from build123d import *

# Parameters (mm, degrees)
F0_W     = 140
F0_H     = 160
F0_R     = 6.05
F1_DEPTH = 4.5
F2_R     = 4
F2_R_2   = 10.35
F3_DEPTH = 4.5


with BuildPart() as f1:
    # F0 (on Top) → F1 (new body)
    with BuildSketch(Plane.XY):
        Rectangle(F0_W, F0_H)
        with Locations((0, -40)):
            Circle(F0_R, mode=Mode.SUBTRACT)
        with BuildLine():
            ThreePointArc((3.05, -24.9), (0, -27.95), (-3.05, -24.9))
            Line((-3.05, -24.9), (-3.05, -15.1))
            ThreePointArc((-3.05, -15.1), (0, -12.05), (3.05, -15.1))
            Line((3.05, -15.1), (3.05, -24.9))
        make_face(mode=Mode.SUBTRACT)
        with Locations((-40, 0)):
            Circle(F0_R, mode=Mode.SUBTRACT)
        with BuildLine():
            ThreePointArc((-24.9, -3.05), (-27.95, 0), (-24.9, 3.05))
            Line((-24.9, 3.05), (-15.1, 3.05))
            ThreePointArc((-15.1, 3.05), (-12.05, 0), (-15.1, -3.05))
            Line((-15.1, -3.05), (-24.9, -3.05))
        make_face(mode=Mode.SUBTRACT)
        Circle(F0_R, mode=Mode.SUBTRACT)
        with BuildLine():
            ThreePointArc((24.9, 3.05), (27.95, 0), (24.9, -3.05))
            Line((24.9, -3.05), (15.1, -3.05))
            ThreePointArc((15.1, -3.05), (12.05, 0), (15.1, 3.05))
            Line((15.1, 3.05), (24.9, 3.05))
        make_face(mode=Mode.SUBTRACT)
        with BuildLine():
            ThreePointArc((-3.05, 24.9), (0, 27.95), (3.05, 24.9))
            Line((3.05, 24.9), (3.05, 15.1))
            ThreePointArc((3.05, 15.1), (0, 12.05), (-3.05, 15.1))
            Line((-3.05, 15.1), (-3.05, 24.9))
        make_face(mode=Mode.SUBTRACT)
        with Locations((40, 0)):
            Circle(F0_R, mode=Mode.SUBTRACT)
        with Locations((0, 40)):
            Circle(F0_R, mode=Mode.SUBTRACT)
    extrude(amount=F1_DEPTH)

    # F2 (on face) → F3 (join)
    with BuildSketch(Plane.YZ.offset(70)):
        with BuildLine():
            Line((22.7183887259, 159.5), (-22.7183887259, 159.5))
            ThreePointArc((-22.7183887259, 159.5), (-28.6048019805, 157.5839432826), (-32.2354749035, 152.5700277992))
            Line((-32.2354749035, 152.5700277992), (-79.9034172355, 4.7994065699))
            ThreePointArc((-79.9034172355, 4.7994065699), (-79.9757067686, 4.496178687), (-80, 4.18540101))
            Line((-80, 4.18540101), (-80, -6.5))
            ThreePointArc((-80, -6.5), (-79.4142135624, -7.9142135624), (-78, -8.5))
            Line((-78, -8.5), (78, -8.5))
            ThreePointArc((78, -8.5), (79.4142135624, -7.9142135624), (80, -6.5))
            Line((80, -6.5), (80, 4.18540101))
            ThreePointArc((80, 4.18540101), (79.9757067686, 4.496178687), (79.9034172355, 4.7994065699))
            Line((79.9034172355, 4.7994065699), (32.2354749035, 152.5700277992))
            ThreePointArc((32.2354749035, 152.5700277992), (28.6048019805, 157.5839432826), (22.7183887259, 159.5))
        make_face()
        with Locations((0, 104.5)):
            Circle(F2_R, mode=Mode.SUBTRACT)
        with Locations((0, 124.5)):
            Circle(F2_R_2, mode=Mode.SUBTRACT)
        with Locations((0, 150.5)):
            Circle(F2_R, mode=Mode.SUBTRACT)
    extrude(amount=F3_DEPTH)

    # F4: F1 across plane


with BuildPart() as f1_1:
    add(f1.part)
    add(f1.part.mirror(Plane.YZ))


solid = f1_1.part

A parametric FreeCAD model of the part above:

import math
import FreeCAD as App
import Part
import Sketcher

V = App.Vector

doc = App.newDocument("Part")
body = doc.addObject("PartDesign::Body", "Body")

sketch1 = body.newObject("Sketcher::SketchObject", "Sketch")
sketch1.AttachmentSupport = (doc.getObject("XY_Plane"), [""])
sketch1.MapMode = "FlatFace"
sketch1.addGeometry([
    Part.LineSegment(V(-70, 80, 0), V(-70, -80, 0)),
    Part.LineSegment(V(-70, -80, 0), V(70, -80, 0)),
    Part.LineSegment(V(70, -80, 0), V(70, 80, 0)),
    Part.LineSegment(V(70, 80, 0), V(-70, 80, 0)),
    Part.Circle(V(0, -40, 0), V(0, 0, 1), 6),
    Part.LineSegment(V(3, -15.1, 0), V(3, -24.9, 0)),
    Part.ArcOfCircle(Part.Circle(V(0, -24.9, 0), V(0, 0, 1), 3), math.radians(180), math.radians(360)),
    Part.LineSegment(V(-3, -24.9, 0), V(-3, -15.1, 0)),
    Part.ArcOfCircle(Part.Circle(V(0, -15.1, 0), V(0, 0, 1), 3), math.radians(0), math.radians(180)),
    Part.Circle(V(-40, 0, 0), V(0, 0, 1), 6),
    Part.LineSegment(V(-15.1, -3, 0), V(-24.9, -3, 0)),
    Part.ArcOfCircle(Part.Circle(V(-24.9, 0, 0), V(0, 0, 1), 3), math.radians(90), math.radians(270)),
    Part.LineSegment(V(-24.9, 3, 0), V(-15.1, 3, 0)),
    Part.ArcOfCircle(Part.Circle(V(-15.1, 0, 0), V(0, 0, 1), 3), math.radians(-90), math.radians(90)),
    Part.Circle(V(0, 0, 0), V(0, 0, 1), 6),
    Part.LineSegment(V(15.1, 3, 0), V(24.9, 3, 0)),
    Part.ArcOfCircle(Part.Circle(V(24.9, 0, 0), V(0, 0, 1), 3), math.radians(-90), math.radians(90)),
    Part.LineSegment(V(24.9, -3, 0), V(15.1, -3, 0)),
    Part.ArcOfCircle(Part.Circle(V(15.1, 0, 0), V(0, 0, 1), 3), math.radians(90), math.radians(270)),
    Part.LineSegment(V(-3, 15.1, 0), V(-3, 24.9, 0)),
    Part.ArcOfCircle(Part.Circle(V(0, 24.9, 0), V(0, 0, 1), 3), math.radians(0), math.radians(180)),
    Part.LineSegment(V(3, 24.9, 0), V(3, 15.1, 0)),
    Part.ArcOfCircle(Part.Circle(V(0, 15.1, 0), V(0, 0, 1), 3), math.radians(180), math.radians(360)),
    Part.Circle(V(40, 0, 0), V(0, 0, 1), 6),
    Part.Circle(V(0, 40, 0), V(0, 0, 1), 6),
], False)
sketch1.addConstraint([
    Sketcher.Constraint("Coincident", 0, 2, 1, 1),
    Sketcher.Constraint("Coincident", 1, 2, 2, 1),
    Sketcher.Constraint("Coincident", 2, 2, 3, 1),
    Sketcher.Constraint("Coincident", 3, 2, 0, 1),
    Sketcher.Constraint("Tangent", 5, 2, 6, 2),
    Sketcher.Constraint("Tangent", 6, 1, 7, 1),
    Sketcher.Constraint("Tangent", 7, 2, 8, 2),
    Sketcher.Constraint("Tangent", 8, 1, 5, 1),
    Sketcher.Constraint("Tangent", 10, 2, 11, 2),
    Sketcher.Constraint("Tangent", 11, 1, 12, 1),
    Sketcher.Constraint("Tangent", 12, 2, 13, 2),
    Sketcher.Constraint("Tangent", 13, 1, 10, 1),
    Sketcher.Constraint("Tangent", 15, 2, 16, 2),
    Sketcher.Constraint("Tangent", 16, 1, 17, 1),
    Sketcher.Constraint("Tangent", 17, 2, 18, 2),
    Sketcher.Constraint("Tangent", 18, 1, 15, 1),
    Sketcher.Constraint("Tangent", 19, 2, 20, 2),
    Sketcher.Constraint("Tangent", 20, 1, 21, 1),
    Sketcher.Constraint("Tangent", 21, 2, 22, 2),
    Sketcher.Constraint("Tangent", 22, 1, 19, 1),
    Sketcher.Constraint("Vertical", 0),
    Sketcher.Constraint("Horizontal", 1),
    Sketcher.Constraint("Vertical", 2),
    Sketcher.Constraint("Horizontal", 3),
    Sketcher.Constraint("Vertical", 5),
    Sketcher.Constraint("Vertical", 7),
    Sketcher.Constraint("Horizontal", 10),
    Sketcher.Constraint("Horizontal", 12),
    Sketcher.Constraint("Horizontal", 15),
    Sketcher.Constraint("Horizontal", 17),
    Sketcher.Constraint("Vertical", 19),
    Sketcher.Constraint("Vertical", 21),
    Sketcher.Constraint("Coincident", 14, 3, -1, 1),
    Sketcher.Constraint("Equal", 4, 9),
    Sketcher.Constraint("Equal", 8, 11),
    Sketcher.Constraint("Equal", 9, 14),
    Sketcher.Constraint("Equal", 13, 16),
    Sketcher.Constraint("Equal", 18, 20),
    Sketcher.Constraint("Equal", 14, 23),
    Sketcher.Constraint("Equal", 23, 24),
    Sketcher.Constraint("Symmetric", 11, 3, 16, 3, -1, 1),
    Sketcher.Constraint("Symmetric", 6, 3, 20, 3, -1, 1),
    Sketcher.Constraint("Symmetric", 9, 3, 23, 3, -1, 1),
    Sketcher.Constraint("Symmetric", 4, 3, 24, 3, -1, 1),
    Sketcher.Constraint("Symmetric", 0, 2, 2, 2, -1, 1),
    Sketcher.Constraint("Symmetric", 13, 3, 18, 3, -2),
    Sketcher.Constraint("Symmetric", 8, 3, 22, 3, -1),
    Sketcher.Constraint("PointOnObject", 4, 3, -2),
    Sketcher.Constraint("PointOnObject", 9, 3, -1),
    Sketcher.Constraint("Equal", 17, 5),
    Sketcher.Constraint("Diameter", 4, 12.1),
    Sketcher.Constraint("DistanceX", 1, 1, 1, 2, 140.0),
    Sketcher.Constraint("DistanceY", 0, 2, 0, 1, 160.0),
    Sketcher.Constraint("Radius", 6, 3.05),
    Sketcher.Constraint("DistanceX", 10, 2, 10, 1, 9.8),
    Sketcher.Constraint("DistanceY", 4, 3, -1, 1, 40.0),
    Sketcher.Constraint("DistanceX", 9, 3, -1, 1, 40.0),
    Sketcher.Constraint("DistanceX", 13, 3, 16, 3, 40.0),
    Sketcher.Constraint("DistanceY", 6, 3, -1, 1, 24.9),
])
pad1 = body.newObject("PartDesign::Pad", "Pad")
pad1.Profile = sketch1
pad1.Length = 4.5

sketch2 = body.newObject("Sketcher::SketchObject", "Sketch001")
sketch2.AttachmentSupport = (doc.getObject("YZ_Plane"), [""])
sketch2.MapMode = "FlatFace"
sketch2.AttachmentOffset = App.Placement(V(0, 0, 70), App.Rotation())
sketch2.addGeometry([
    Part.LineSegment(V(22.7, 159.5, 0), V(-22.7, 159.5, 0)),
    Part.ArcOfCircle(Part.Circle(V(-22.7, 149.5, 0), V(0, 0, 1), 10), math.radians(90), math.radians(162)),
    Part.LineSegment(V(-32.2, 152.6, 0), V(-79.9, 4.8, 0)),
    Part.ArcOfCircle(Part.Circle(V(-78, 4.2, 0), V(0, 0, 1), 2), math.radians(162.12), math.radians(180)),
    Part.LineSegment(V(-80, 4.2, 0), V(-80, -6.5, 0)),
    Part.ArcOfCircle(Part.Circle(V(-78, -6.5, 0), V(0, 0, 1), 2), math.radians(180), math.radians(270)),
    Part.LineSegment(V(-78, -8.5, 0), V(78, -8.5, 0)),
    Part.ArcOfCircle(Part.Circle(V(78, -6.5, 0), V(0, 0, 1), 2), math.radians(-90), math.radians(0)),
    Part.LineSegment(V(80, -6.5, 0), V(80, 4.2, 0)),
    Part.ArcOfCircle(Part.Circle(V(78, 4.2, 0), V(0, 0, 1), 2), math.radians(0), math.radians(17.88)),
    Part.LineSegment(V(79.9, 4.8, 0), V(32.2, 152.6, 0)),
    Part.ArcOfCircle(Part.Circle(V(22.7, 149.5, 0), V(0, 0, 1), 10), math.radians(18), math.radians(90)),
    Part.Circle(V(0, 104.5, 0), V(0, 0, 1), 4),
    Part.Circle(V(0, 124.5, 0), V(0, 0, 1), 10.3),
    Part.Circle(V(0, 150.5, 0), V(0, 0, 1), 4),
], False)
sketch2.addConstraint([
    Sketcher.Constraint("Tangent", 0, 2, 1, 1),
    Sketcher.Constraint("Tangent", 1, 2, 2, 1),
    Sketcher.Constraint("Tangent", 2, 2, 3, 1),
    Sketcher.Constraint("Tangent", 3, 2, 4, 1),
    Sketcher.Constraint("Tangent", 4, 2, 5, 1),
    Sketcher.Constraint("Tangent", 5, 2, 6, 1),
    Sketcher.Constraint("Tangent", 6, 2, 7, 1),
    Sketcher.Constraint("Tangent", 7, 2, 8, 1),
    Sketcher.Constraint("Tangent", 8, 2, 9, 1),
    Sketcher.Constraint("Tangent", 9, 2, 10, 1),
    Sketcher.Constraint("Tangent", 10, 2, 11, 1),
    Sketcher.Constraint("Tangent", 11, 2, 0, 1),
    Sketcher.Constraint("Horizontal", 0),
    Sketcher.Constraint("Vertical", 4),
    Sketcher.Constraint("Horizontal", 6),
    Sketcher.Constraint("Vertical", 8),
    Sketcher.Constraint("Equal", 3, 5),
    Sketcher.Constraint("Equal", 5, 7),
    Sketcher.Constraint("Equal", 7, 9),
    Sketcher.Constraint("Equal", 1, 11),
    Sketcher.Constraint("Equal", 12, 14),
    Sketcher.Constraint("Symmetric", 3, 3, 9, 3, -2),
    Sketcher.Constraint("PointOnObject", 12, 3, -2),
    Sketcher.Constraint("PointOnObject", 13, 3, -2),
    Sketcher.Constraint("PointOnObject", 14, 3, -2),
    Sketcher.Constraint("Horizontal", 2, 2, 9, 2),
    Sketcher.Constraint("Diameter", 12, 8.0),
    Sketcher.Constraint("Radius", 1, 10.0),
    Sketcher.Constraint("Radius", 3, 2.0),
    Sketcher.Constraint("Diameter", 13, 20.7),
    Sketcher.Constraint("DistanceX", 6, 1, 6, 2, 156.0),
    Sketcher.Constraint("DistanceY", 5, 3, 1, 3, 156.0),
    Sketcher.Constraint("DistanceY", 12, 3, 1, 3, 45.0),
    Sketcher.Constraint("DistanceY", 12, 3, 13, 3, 20.0),
    Sketcher.Constraint("DistanceY", 1, 3, 14, 3, 1.0),
    Sketcher.Constraint("DistanceY", -1, 1, 1, 3, 149.5),
    Sketcher.Constraint("DistanceY", 4, 2, 4, 1, 10.685401),
    Sketcher.Constraint("DistanceX", 0, 2, 0, 1, 45.436777),
])
pad2 = body.newObject("PartDesign::Pad", "Pad001")
pad2.Profile = sketch2
pad2.Length = 4.5
body2 = doc.addObject("PartDesign::Body", "Body001")
doc.recompute()

body2.BaseFeature = body
doc.recompute()

mirroring = doc.addObject("Part::Mirroring", "Mirroring")
mirroring.Source = body
mirroring.Base = V(0, 0, 0)
mirroring.Normal = V(1, 0, 0)
body3 = doc.addObject("PartDesign::Body", "Body002")
body3.BaseFeature = mirroring
boolean = body2.newObject("PartDesign::Boolean", "Boolean")
boolean.Type = "Fuse"
boolean.addObjects([body3])
doc.recompute()
mirroring.Visibility = False

doc.recompute()
